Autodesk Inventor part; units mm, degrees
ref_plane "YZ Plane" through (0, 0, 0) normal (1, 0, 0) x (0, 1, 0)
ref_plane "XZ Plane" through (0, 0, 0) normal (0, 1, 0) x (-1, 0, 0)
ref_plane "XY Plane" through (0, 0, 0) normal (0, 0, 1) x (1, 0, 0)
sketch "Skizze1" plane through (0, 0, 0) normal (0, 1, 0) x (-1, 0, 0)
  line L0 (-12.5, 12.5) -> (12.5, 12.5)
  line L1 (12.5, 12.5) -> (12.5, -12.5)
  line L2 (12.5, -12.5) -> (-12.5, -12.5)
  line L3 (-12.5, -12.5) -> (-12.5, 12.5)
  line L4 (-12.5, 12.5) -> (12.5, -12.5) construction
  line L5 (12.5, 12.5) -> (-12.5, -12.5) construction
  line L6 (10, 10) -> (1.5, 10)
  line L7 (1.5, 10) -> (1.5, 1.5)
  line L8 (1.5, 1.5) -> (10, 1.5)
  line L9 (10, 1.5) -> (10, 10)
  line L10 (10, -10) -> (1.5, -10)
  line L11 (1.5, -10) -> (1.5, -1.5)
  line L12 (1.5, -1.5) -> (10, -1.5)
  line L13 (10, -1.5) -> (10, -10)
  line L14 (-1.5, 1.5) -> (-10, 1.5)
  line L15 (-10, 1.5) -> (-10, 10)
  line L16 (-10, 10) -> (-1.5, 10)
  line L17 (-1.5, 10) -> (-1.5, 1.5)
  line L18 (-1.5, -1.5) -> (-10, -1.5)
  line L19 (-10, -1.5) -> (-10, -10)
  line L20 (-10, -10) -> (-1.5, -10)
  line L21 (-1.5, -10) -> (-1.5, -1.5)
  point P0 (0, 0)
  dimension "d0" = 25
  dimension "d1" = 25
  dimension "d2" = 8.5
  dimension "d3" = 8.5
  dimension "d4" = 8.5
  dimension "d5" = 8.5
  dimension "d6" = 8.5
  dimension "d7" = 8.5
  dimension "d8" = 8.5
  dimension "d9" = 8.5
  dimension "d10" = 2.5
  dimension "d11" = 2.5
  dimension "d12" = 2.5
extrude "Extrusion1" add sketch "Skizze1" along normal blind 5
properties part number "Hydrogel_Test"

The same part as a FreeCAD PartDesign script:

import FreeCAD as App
import Part
import Sketcher
from FreeCAD import Vector
Q = App.Units.Quantity

doc = App.newDocument("Part")
body = doc.addObject("PartDesign::Body", "Body")

sketch1 = body.newObject("Sketcher::SketchObject", "Sketch")
sketch1.AttachmentSupport = (doc.getObject("XZ_Plane"), [""])
sketch1.MapMode = "FlatFace"
sketch1.addGeometry([
    Part.LineSegment(Vector(-12, 12, 0), Vector(12, 12, 0)),
    Part.LineSegment(Vector(12, 12, 0), Vector(12, -12, 0)),
    Part.LineSegment(Vector(12, -12, 0), Vector(-12, -12, 0)),
    Part.LineSegment(Vector(-12, -12, 0), Vector(-12, 12, 0)),
    Part.LineSegment(Vector(10, -2, 0), Vector(2, -2, 0)),
    Part.LineSegment(Vector(2, -2, 0), Vector(2, -10, 0)),
    Part.LineSegment(Vector(2, -10, 0), Vector(10, -10, 0)),
    Part.LineSegment(Vector(10, -10, 0), Vector(10, -2, 0)),
    Part.LineSegment(Vector(-10, -2, 0), Vector(-10, -10, 0)),
    Part.LineSegment(Vector(-10, -10, 0), Vector(-2, -10, 0)),
    Part.LineSegment(Vector(-2, -10, 0), Vector(-2, -2, 0)),
    Part.LineSegment(Vector(-2, -2, 0), Vector(-10, -2, 0)),
    Part.LineSegment(Vector(2, 10, 0), Vector(2, 2, 0)),
    Part.LineSegment(Vector(2, 2, 0), Vector(10, 2, 0)),
    Part.LineSegment(Vector(10, 2, 0), Vector(10, 10, 0)),
    Part.LineSegment(Vector(10, 10, 0), Vector(2, 10, 0)),
    Part.LineSegment(Vector(-2, 10, 0), Vector(-10, 10, 0)),
    Part.LineSegment(Vector(-10, 10, 0), Vector(-10, 2, 0)),
    Part.LineSegment(Vector(-10, 2, 0), Vector(-2, 2, 0)),
    Part.LineSegment(Vector(-2, 2, 0), Vector(-2, 10, 0)),
], False)
sketch1.addConstraint([
    Sketcher.Constraint("Coincident", 0, 2, 1, 1),
    Sketcher.Constraint("Coincident", 1, 2, 2, 1),
    Sketcher.Constraint("Coincident", 2, 2, 3, 1),
    Sketcher.Constraint("Coincident", 3, 2, 0, 1),
    Sketcher.Constraint("Coincident", 4, 2, 5, 1),
    Sketcher.Constraint("Coincident", 5, 2, 6, 1),
    Sketcher.Constraint("Coincident", 6, 2, 7, 1),
    Sketcher.Constraint("Coincident", 7, 2, 4, 1),
    Sketcher.Constraint("Coincident", 8, 2, 9, 1),
    Sketcher.Constraint("Coincident", 9, 2, 10, 1),
    Sketcher.Constraint("Coincident", 10, 2, 11, 1),
    Sketcher.Constraint("Coincident", 11, 2, 8, 1),
    Sketcher.Constraint("Coincident", 12, 2, 13, 1),
    Sketcher.Constraint("Coincident", 13, 2, 14, 1),
    Sketcher.Constraint("Coincident", 14, 2, 15, 1),
    Sketcher.Constraint("Coincident", 15, 2, 12, 1),
    Sketcher.Constraint("Coincident", 16, 2, 17, 1),
    Sketcher.Constraint("Coincident", 17, 2, 18, 1),
    Sketcher.Constraint("Coincident", 18, 2, 19, 1),
    Sketcher.Constraint("Coincident", 19, 2, 16, 1),
    Sketcher.Constraint("Horizontal", 0),
    Sketcher.Constraint("Vertical", 1),
    Sketcher.Constraint("Horizontal", 2),
    Sketcher.Constraint("Vertical", 3),
    Sketcher.Constraint("Horizontal", 4),
    Sketcher.Constraint("Vertical", 5),
    Sketcher.Constraint("Horizontal", 6),
    Sketcher.Constraint("Vertical", 7),
    Sketcher.Constraint("Vertical", 8),
    Sketcher.Constraint("Horizontal", 9),
    Sketcher.Constraint("Vertical", 10),
    Sketcher.Constraint("Horizontal", 11),
    Sketcher.Constraint("Vertical", 12),
    Sketcher.Constraint("Horizontal", 13),
    Sketcher.Constraint("Vertical", 14),
    Sketcher.Constraint("Horizontal", 15),
    Sketcher.Constraint("Horizontal", 16),
    Sketcher.Constraint("Vertical", 17),
    Sketcher.Constraint("Horizontal", 18),
    Sketcher.Constraint("Vertical", 19),
    Sketcher.Constraint("Symmetric", 0, 2, 2, 2, -1, 1),
    Sketcher.Constraint("Symmetric", 10, 2, 12, 2, -1, 1),
    Sketcher.Constraint("Symmetric", 8, 2, 14, 2, -1, 1),
    Sketcher.Constraint("Symmetric", 6, 2, 16, 2, -1, 1),
    Sketcher.Constraint("Symmetric", 4, 2, 18, 2, -1, 1),
    Sketcher.Constraint("Symmetric", 6, 2, 8, 2, -2),
    Sketcher.Constraint("Symmetric", 4, 2, 10, 2, -2),
    Sketcher.Constraint("Equal", 2, 1),
    Sketcher.Constraint("Equal", 18, 5),
    Sketcher.Constraint("DistanceX", 0, 1, 0, 2, Q("25 mm")),
    Sketcher.Constraint("DistanceX", 4, 2, 4, 1, Q("8.5 mm")),
    Sketcher.Constraint("DistanceY", 1, 2, 5, 2, Q("2.5 mm")),
    Sketcher.Constraint("DistanceX", 6, 2, 1, 2, Q("2.5 mm")),
])
pad1 = body.newObject("PartDesign::Pad", "Pad")
pad1.Profile = sketch1
pad1.Length = 5
pad1.Reversed = True

doc.recompute()
